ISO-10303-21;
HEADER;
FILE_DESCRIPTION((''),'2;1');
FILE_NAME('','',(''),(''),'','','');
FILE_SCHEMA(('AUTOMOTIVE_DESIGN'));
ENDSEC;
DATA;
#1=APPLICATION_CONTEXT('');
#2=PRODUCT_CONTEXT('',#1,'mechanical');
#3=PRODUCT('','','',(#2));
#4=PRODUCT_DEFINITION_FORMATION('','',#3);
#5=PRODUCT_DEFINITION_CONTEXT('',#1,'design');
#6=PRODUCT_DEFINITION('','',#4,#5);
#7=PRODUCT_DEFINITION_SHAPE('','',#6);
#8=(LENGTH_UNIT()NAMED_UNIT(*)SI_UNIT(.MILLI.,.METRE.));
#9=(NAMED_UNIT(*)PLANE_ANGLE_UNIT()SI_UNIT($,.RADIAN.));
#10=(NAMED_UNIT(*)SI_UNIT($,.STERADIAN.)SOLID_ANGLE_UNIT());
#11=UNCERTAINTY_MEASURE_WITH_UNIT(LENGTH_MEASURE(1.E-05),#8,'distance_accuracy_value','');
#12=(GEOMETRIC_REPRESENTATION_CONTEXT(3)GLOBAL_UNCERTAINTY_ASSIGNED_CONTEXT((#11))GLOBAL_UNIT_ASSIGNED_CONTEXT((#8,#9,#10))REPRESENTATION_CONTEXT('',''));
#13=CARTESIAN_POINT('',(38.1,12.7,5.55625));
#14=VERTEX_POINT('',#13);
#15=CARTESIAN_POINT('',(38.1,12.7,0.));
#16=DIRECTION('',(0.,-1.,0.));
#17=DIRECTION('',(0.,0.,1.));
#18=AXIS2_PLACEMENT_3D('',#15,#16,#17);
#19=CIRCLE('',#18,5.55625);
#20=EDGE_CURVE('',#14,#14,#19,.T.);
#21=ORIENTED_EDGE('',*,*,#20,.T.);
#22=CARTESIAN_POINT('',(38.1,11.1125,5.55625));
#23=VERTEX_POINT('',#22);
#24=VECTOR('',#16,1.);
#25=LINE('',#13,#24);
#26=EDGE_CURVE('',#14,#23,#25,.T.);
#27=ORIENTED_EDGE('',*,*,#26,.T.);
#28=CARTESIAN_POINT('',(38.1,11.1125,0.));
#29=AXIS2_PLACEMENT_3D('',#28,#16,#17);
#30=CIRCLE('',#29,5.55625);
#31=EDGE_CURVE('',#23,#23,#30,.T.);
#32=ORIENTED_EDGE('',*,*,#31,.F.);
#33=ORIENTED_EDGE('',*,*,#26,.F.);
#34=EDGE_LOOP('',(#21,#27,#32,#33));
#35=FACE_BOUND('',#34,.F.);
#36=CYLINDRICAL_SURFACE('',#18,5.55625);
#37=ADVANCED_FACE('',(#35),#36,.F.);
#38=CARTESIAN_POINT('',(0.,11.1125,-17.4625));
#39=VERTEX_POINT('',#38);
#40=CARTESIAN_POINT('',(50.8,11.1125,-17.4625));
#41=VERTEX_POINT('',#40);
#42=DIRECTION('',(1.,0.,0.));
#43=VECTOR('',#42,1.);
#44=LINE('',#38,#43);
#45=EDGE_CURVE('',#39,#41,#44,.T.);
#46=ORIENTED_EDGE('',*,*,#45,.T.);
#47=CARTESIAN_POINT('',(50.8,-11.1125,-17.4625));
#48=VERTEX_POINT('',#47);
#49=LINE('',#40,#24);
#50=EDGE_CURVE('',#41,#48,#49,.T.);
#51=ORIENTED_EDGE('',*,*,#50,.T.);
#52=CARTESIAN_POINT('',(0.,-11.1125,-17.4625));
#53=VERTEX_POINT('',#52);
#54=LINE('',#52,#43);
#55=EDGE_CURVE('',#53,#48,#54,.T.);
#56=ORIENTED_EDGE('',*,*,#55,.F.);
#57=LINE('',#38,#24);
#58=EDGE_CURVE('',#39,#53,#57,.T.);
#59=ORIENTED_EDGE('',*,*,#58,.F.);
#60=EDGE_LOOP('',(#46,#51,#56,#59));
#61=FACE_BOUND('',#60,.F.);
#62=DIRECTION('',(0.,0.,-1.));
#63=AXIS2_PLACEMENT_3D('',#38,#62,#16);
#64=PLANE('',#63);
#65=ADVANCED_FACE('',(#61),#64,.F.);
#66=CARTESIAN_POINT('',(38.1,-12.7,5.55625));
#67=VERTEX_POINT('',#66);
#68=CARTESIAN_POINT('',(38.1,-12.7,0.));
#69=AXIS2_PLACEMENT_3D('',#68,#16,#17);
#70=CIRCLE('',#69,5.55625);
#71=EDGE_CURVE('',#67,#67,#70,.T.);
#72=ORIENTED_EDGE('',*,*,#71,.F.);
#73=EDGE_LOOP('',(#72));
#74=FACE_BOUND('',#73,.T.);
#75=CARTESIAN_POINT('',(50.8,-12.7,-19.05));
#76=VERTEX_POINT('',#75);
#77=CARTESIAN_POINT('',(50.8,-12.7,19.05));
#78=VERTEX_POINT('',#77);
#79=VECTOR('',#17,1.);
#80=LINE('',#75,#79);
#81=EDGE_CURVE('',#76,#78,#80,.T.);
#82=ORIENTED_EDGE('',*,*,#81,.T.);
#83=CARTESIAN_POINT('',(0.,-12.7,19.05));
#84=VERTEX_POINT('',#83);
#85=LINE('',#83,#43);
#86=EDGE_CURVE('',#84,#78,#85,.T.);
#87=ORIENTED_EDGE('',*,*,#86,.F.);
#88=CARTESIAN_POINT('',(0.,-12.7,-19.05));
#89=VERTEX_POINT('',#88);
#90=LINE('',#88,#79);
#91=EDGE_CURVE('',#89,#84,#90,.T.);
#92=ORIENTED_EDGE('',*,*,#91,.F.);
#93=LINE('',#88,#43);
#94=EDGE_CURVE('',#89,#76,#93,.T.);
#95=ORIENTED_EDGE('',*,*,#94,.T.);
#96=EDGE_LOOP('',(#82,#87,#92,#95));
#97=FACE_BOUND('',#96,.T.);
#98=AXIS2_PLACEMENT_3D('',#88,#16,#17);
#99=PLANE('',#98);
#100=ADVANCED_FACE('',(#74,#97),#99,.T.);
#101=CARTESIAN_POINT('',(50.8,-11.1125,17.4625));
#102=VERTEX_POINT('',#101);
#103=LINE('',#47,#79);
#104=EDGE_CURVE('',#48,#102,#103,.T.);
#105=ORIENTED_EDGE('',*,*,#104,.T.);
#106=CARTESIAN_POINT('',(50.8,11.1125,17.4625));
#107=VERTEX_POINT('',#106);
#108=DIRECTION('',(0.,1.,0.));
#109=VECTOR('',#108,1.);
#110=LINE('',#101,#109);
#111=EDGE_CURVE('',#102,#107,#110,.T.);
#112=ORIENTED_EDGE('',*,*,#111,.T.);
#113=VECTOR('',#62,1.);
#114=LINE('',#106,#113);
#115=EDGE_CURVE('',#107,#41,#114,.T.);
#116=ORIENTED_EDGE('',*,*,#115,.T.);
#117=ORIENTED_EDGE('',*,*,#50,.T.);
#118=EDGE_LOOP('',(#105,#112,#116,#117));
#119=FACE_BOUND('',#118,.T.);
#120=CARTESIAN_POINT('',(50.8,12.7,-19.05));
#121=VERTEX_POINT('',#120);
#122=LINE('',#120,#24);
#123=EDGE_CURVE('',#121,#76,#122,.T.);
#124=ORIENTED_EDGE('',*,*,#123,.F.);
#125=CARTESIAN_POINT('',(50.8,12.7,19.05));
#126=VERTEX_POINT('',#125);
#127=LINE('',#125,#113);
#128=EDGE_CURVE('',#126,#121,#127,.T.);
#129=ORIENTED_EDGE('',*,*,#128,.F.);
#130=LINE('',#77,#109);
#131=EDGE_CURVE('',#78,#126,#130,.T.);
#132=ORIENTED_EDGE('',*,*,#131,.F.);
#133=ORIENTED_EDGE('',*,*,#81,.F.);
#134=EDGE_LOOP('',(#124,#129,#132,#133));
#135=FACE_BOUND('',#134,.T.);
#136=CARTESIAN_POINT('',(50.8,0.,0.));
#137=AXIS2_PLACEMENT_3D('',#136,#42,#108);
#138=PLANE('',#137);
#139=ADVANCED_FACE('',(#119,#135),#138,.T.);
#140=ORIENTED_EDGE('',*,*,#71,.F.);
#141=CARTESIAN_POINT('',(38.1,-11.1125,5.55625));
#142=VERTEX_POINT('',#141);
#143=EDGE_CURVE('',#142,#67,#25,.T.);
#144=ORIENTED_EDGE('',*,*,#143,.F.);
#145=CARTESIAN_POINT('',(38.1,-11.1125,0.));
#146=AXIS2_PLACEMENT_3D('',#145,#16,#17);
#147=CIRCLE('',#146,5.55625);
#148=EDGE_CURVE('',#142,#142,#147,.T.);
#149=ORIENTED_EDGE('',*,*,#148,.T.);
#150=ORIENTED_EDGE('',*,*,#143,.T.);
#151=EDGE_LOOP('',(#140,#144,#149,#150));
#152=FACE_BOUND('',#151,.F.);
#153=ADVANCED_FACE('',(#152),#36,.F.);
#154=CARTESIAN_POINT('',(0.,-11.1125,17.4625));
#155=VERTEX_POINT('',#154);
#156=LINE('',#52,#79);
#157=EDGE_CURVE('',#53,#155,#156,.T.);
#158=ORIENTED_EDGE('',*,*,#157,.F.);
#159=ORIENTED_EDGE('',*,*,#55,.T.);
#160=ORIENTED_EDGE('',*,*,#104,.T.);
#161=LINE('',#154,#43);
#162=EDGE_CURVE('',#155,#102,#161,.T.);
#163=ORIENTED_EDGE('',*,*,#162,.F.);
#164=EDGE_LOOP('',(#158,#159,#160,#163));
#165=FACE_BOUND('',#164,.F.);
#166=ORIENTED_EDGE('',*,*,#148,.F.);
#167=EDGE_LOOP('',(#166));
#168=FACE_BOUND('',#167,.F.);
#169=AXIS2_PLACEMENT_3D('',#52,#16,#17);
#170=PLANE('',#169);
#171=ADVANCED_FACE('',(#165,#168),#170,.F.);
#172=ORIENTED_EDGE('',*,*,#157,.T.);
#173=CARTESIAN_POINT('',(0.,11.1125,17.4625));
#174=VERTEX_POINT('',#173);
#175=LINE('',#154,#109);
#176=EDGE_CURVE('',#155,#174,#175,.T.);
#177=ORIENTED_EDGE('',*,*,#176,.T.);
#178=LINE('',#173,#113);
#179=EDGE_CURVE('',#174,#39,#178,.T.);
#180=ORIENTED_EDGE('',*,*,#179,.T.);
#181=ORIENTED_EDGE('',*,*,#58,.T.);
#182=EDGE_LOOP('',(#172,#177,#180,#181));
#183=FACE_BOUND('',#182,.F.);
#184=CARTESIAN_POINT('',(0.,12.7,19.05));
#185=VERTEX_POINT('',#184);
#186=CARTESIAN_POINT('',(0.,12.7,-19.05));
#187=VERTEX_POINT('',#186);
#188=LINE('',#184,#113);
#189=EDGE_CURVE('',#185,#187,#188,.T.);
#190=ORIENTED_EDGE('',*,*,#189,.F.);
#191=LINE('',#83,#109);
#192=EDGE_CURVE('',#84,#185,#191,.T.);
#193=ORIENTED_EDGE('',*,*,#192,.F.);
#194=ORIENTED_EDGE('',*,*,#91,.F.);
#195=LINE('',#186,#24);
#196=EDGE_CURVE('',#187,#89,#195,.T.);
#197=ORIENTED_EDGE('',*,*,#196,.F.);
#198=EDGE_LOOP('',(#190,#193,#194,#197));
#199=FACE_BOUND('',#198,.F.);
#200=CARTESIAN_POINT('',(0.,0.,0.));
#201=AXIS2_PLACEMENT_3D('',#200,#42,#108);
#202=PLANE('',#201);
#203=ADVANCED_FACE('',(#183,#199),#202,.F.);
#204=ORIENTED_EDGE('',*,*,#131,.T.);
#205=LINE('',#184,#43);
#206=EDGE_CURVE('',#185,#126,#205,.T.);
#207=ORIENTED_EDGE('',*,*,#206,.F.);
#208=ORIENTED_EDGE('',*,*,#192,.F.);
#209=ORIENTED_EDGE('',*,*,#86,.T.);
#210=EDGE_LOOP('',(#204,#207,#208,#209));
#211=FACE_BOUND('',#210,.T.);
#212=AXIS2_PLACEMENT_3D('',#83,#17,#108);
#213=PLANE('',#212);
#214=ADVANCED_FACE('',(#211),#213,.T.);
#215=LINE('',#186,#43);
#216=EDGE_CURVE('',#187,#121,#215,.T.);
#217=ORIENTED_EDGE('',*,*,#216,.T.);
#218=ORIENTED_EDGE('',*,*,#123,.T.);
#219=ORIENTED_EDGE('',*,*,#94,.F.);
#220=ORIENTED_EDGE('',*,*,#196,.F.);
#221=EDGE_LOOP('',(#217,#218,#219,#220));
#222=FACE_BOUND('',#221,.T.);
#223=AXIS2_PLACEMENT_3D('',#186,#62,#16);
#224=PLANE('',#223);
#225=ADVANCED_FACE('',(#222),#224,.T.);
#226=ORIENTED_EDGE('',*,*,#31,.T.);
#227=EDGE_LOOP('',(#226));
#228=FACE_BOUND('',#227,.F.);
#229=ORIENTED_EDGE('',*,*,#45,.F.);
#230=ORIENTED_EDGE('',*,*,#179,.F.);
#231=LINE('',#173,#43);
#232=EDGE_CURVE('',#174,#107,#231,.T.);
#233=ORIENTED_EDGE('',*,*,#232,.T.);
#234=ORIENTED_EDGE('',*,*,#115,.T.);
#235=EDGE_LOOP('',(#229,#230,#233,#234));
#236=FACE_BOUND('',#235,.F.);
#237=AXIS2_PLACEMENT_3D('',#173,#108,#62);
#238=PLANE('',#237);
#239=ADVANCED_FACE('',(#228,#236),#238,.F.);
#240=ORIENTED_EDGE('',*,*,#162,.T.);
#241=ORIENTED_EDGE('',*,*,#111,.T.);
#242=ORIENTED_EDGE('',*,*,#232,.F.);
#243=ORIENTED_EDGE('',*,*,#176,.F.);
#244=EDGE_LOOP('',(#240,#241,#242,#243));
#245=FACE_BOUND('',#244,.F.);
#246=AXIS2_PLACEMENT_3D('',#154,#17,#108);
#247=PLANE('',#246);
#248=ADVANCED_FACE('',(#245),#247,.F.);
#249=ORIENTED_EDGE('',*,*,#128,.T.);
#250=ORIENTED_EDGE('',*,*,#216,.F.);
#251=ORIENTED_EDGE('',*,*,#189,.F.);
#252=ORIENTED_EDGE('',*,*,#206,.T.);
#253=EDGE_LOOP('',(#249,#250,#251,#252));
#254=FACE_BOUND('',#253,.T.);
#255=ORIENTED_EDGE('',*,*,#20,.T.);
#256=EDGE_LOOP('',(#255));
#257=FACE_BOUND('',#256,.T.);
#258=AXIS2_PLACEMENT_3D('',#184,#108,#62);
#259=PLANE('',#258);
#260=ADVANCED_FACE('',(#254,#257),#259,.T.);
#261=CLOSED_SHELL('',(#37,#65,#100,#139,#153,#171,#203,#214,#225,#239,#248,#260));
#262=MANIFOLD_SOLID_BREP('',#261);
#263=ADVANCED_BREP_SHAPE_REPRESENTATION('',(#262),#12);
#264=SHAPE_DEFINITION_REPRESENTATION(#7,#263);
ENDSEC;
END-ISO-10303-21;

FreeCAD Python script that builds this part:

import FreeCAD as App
import Part
import Sketcher
Q = App.Units.Quantity


def add_polygon(sketch, points):
    """Adds a closed chain of lines whose ends are joined by coincident constraints."""
    first, n = sketch.GeometryCount, len(points)
    for a, b in zip(points, points[1:] + points[:1]):
        sketch.addGeometry(Part.LineSegment(App.Vector(*a, 0), App.Vector(*b, 0)), False)
    for i in range(n):
        sketch.addConstraint(Sketcher.Constraint("Coincident", first + i, 2, first + (i + 1) % n, 1))

doc = App.newDocument("Part")
params = doc.addObject("Spreadsheet::Sheet", "Params")
for row, (alias, value) in enumerate([
    ("sketch1_width", "1 in"),
    ("sketch1_height", "1.5 in"),
    ("pad1_length", "2 in"),
    ("sketch2_diameter", "0.4375 in"),
    ("hole_diameter", "0.4375 in"),
], start=1):
    params.set(f"A{row}", alias)
    params.set(f"B{row}", "=" + value)
    params.setAlias(f"B{row}", alias)

body = doc.addObject("PartDesign::Body", "Body")

# Sketch on YZ plane
sketch1 = body.newObject("Sketcher::SketchObject", "Sketch")
sketch1.AttachmentSupport = (doc.getObject("YZ_Plane"), [""])
sketch1.MapMode = "FlatFace"
add_polygon(sketch1, [(13, 19), (-13, 19), (-13, -19), (13, -19)])  # lines 0-3
add_polygon(sketch1, [(-11, -17), (-11, 17), (11, 17), (11, -17)])  # lines 4-7
sketch1.addConstraint([
    Sketcher.Constraint("Horizontal", 0),
    Sketcher.Constraint("Vertical", 1),
    Sketcher.Constraint("Horizontal", 2),
    Sketcher.Constraint("Vertical", 3),
    Sketcher.Constraint("Vertical", 4),
    Sketcher.Constraint("Horizontal", 5),
    Sketcher.Constraint("Vertical", 6),
    Sketcher.Constraint("Horizontal", 7),
    Sketcher.Constraint("Symmetric", 0, 2, 2, 2, -1, 1),
    Sketcher.Constraint("Symmetric", 4, 2, 6, 2, -1, 1),
    Sketcher.Constraint("DistanceX", 0, 2, 0, 1, Q("1 in")),
    Sketcher.Constraint("DistanceY", 1, 2, 1, 1, Q("1.5 in")),
    Sketcher.Constraint("DistanceX", 0, 2, 4, 2, Q("0.0625 in")),
    Sketcher.Constraint("DistanceY", 4, 2, 0, 2, Q("0.0625 in")),
])
sketch1.setExpression("Constraints[18]", "Params.sketch1_width")
sketch1.setExpression("Constraints[19]", "Params.sketch1_height")
pad1 = body.newObject("PartDesign::Pad", "Pad")
pad1.Profile = sketch1
pad1.setExpression("Length", "Params.pad1_length")

# Sketch on XZ plane
sketch2 = body.newObject("Sketcher::SketchObject", "Sketch001")
sketch2.AttachmentSupport = (doc.getObject("XZ_Plane"), [""])
sketch2.MapMode = "FlatFace"
sketch2.AttachmentOffset = App.Placement(App.Vector(0, 0, -0.5 * 25.4), App.Rotation())
sketch2.addGeometry(Part.Circle(App.Vector(38, 0, 0), App.Vector(0, 0, 1), 6), False)
sketch2.addConstraint([
    Sketcher.Constraint("PointOnObject", 0, 3, -1),
    Sketcher.Constraint("Diameter", 0, Q("0.4375 in")),
    Sketcher.Constraint("DistanceX", -1, 1, 0, 3, Q("1.5 in")),
])
sketch2.setExpression("Constraints[1]", "Params.sketch2_diameter")
doc.recompute()
hole = body.newObject("PartDesign::Hole", "Hole")
hole.Profile = sketch2
hole.ThreadType = "None"
hole.setExpression("Diameter", "Params.hole_diameter")
hole.DepthType = "ThroughAll"
hole.Reversed = True

doc.recompute()
